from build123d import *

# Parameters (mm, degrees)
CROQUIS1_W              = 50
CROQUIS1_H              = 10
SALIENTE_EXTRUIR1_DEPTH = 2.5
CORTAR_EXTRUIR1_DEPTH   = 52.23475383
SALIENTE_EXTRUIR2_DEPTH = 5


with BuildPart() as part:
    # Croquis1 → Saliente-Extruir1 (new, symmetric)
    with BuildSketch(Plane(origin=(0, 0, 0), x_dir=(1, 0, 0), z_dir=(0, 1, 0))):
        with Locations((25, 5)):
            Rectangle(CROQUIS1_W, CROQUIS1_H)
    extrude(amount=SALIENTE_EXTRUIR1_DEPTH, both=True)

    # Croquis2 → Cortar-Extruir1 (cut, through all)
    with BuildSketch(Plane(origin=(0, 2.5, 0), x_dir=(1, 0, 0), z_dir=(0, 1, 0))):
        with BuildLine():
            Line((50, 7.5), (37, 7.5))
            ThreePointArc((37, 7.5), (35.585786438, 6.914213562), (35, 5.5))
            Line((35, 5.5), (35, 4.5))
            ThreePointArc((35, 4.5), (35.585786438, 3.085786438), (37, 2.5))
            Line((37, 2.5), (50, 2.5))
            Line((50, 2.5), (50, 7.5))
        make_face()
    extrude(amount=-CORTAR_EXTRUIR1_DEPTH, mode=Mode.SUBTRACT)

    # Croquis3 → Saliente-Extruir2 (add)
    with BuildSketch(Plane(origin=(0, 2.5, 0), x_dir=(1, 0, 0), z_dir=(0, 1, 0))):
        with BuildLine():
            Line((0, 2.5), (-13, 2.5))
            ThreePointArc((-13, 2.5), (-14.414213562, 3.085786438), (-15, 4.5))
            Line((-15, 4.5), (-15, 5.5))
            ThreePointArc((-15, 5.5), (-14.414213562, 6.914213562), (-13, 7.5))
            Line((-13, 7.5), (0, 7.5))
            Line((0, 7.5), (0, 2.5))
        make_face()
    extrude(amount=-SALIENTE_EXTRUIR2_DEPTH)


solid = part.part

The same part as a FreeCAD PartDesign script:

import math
import FreeCAD as App
import Part
import Sketcher
Q = App.Units.Quantity


def add_polygon(sketch, points):
    """Adds a closed chain of lines whose ends are joined by coincident constraints."""
    first, n = sketch.GeometryCount, len(points)
    for a, b in zip(points, points[1:] + points[:1]):
        sketch.addGeometry(Part.LineSegment(App.Vector(*a, 0), App.Vector(*b, 0)), False)
    for i in range(n):
        sketch.addConstraint(Sketcher.Constraint("Coincident", first + i, 2, first + (i + 1) % n, 1))

doc = App.newDocument("Part")
body = doc.addObject("PartDesign::Body", "Body")

# Sketch on XZ plane
sketch1 = body.newObject("Sketcher::SketchObject", "Sketch")
sketch1.AttachmentSupport = (doc.getObject("XZ_Plane"), [""])
sketch1.MapMode = "FlatFace"
add_polygon(sketch1, [(0, -10), (0, 0), (50, 0), (50, -10)])  # lines 0-3
sketch1.addConstraint(Sketcher.Constraint("Vertical", 0))
sketch1.addConstraint(Sketcher.Constraint("Horizontal", 1))
sketch1.addConstraint(Sketcher.Constraint("Vertical", 2))
sketch1.addConstraint(Sketcher.Constraint("Horizontal", 3))
sketch1.addConstraint(Sketcher.Constraint("Coincident", 0, 2, -1, 1))
sketch1.addConstraint(Sketcher.Constraint("DistanceX", 1, 1, 1, 2, Q("50 mm")))
sketch1.addConstraint(Sketcher.Constraint("DistanceY", 0, 1, 0, 2, Q("10 mm")))
pad1 = body.newObject("PartDesign::Pad", "Pad")
pad1.Profile = sketch1
pad1.Length = 5
pad1.Midplane = True

# Sketch on XZ plane
sketch2 = body.newObject("Sketcher::SketchObject", "Sketch001")
sketch2.AttachmentSupport = (doc.getObject("XZ_Plane"), [""])
sketch2.MapMode = "FlatFace"
sketch2.AttachmentOffset = App.Placement(App.Vector(0, 0, -2.5), App.Rotation())
sketch2.addGeometry(Part.LineSegment(App.Vector(50, -7.5, 0), App.Vector(37, -7.5, 0)), False)
sketch2.addGeometry(Part.ArcOfCircle(Part.Circle(App.Vector(37, -5.5, 0), App.Vector(0, 0, 1), 2), math.radians(-180), math.radians(-90)), False)
sketch2.addGeometry(Part.LineSegment(App.Vector(35, -5.5, 0), App.Vector(35, -4.5, 0)), False)
sketch2.addGeometry(Part.ArcOfCircle(Part.Circle(App.Vector(37, -4.5, 0), App.Vector(0, 0, 1), 2), math.radians(90), math.radians(180)), False)
sketch2.addGeometry(Part.LineSegment(App.Vector(37, -2.5, 0), App.Vector(50, -2.5, 0)), False)
sketch2.addGeometry(Part.LineSegment(App.Vector(50, -2.5, 0), App.Vector(50, -7.5, 0)), False)
sketch2.addConstraint(Sketcher.Constraint("Tangent", 0, 2, 1, 2))
sketch2.addConstraint(Sketcher.Constraint("Tangent", 1, 1, 2, 1))
sketch2.addConstraint(Sketcher.Constraint("Tangent", 2, 2, 3, 2))
sketch2.addConstraint(Sketcher.Constraint("Tangent", 3, 1, 4, 1))
sketch2.addConstraint(Sketcher.Constraint("Coincident", 4, 2, 5, 1))
sketch2.addConstraint(Sketcher.Constraint("Coincident", 5, 2, 0, 1))
sketch2.addConstraint(Sketcher.Constraint("Horizontal", 0))
sketch2.addConstraint(Sketcher.Constraint("Vertical", 2))
sketch2.addConstraint(Sketcher.Constraint("Horizontal", 4))
sketch2.addConstraint(Sketcher.Constraint("Vertical", 5))
sketch2.addConstraint(Sketcher.Constraint("Equal", 1, 3))
sketch2.addConstraint(Sketcher.Constraint("Radius", 1, Q("2 mm")))
sketch2.addConstraint(Sketcher.Constraint("DistanceX", 0, 2, 0, 1, Q("13 mm")))
sketch2.addConstraint(Sketcher.Constraint("DistanceY", 2, 1, 2, 2, Q("1 mm")))
sketch2.addConstraint(Sketcher.Constraint("DistanceX", -1, 1, 1, 3, Q("37 mm")))
sketch2.addConstraint(Sketcher.Constraint("DistanceY", 1, 3, -1, 1, Q("5.5 mm")))
pocket1 = body.newObject("PartDesign::Pocket", "Pocket")
pocket1.Profile = sketch2
pocket1.Type = "ThroughAll"
pocket1.Reversed = True

# Sketch on XZ plane
sketch3 = body.newObject("Sketcher::SketchObject", "Sketch002")
sketch3.AttachmentSupport = (doc.getObject("XZ_Plane"), [""])
sketch3.MapMode = "FlatFace"
sketch3.AttachmentOffset = App.Placement(App.Vector(0, 0, -2.5), App.Rotation())
sketch3.addGeometry(Part.LineSegment(App.Vector(-13, -2.5, 0), App.Vector(0, -2.5, 0)), False)
sketch3.addGeometry(Part.LineSegment(App.Vector(0, -2.5, 0), App.Vector(0, -7.5, 0)), False)
sketch3.addGeometry(Part.LineSegment(App.Vector(0, -7.5, 0), App.Vector(-13, -7.5, 0)), False)
sketch3.addGeometry(Part.ArcOfCircle(Part.Circle(App.Vector(-13, -5.5, 0), App.Vector(0, 0, 1), 2), math.radians(-180), math.radians(-90)), False)
sketch3.addGeometry(Part.LineSegment(App.Vector(-15, -5.5, 0), App.Vector(-15, -4.5, 0)), False)
sketch3.addGeometry(Part.ArcOfCircle(Part.Circle(App.Vector(-13, -4.5, 0), App.Vector(0, 0, 1), 2), math.radians(90), math.radians(180)), False)
sketch3.addConstraint(Sketcher.Constraint("Coincident", 0, 2, 1, 1))
sketch3.addConstraint(Sketcher.Constraint("Coincident", 1, 2, 2, 1))
sketch3.addConstraint(Sketcher.Constraint("Tangent", 2, 2, 3, 2))
sketch3.addConstraint(Sketcher.Constraint("Tangent", 3, 1, 4, 1))
sketch3.addConstraint(Sketcher.Constraint("Tangent", 4, 2, 5, 2))
sketch3.addConstraint(Sketcher.Constraint("Tangent", 5, 1, 0, 1))
sketch3.addConstraint(Sketcher.Constraint("Horizontal", 0))
sketch3.addConstraint(Sketcher.Constraint("Vertical", 1))
sketch3.addConstraint(Sketcher.Constraint("Horizontal", 2))
sketch3.addConstraint(Sketcher.Constraint("Vertical", 4))
sketch3.addConstraint(Sketcher.Constraint("Equal", 3, 5))
sketch3.addConstraint(Sketcher.Constraint("PointOnObject", 0, 2, -2))
sketch3.addConstraint(Sketcher.Constraint("Radius", 3, Q("2 mm")))
sketch3.addConstraint(Sketcher.Constraint("DistanceX", 0, 1, 0, 2, Q("13 mm")))
sketch3.addConstraint(Sketcher.Constraint("DistanceY", 1, 2, 1, 1, Q("5 mm")))
sketch3.addConstraint(Sketcher.Constraint("DistanceY", 3, 3, -1, 1, Q("5.5 mm")))
pad2 = body.newObject("PartDesign::Pad", "Pad001")
pad2.Profile = sketch3
pad2.Length = 5

doc.recompute()
